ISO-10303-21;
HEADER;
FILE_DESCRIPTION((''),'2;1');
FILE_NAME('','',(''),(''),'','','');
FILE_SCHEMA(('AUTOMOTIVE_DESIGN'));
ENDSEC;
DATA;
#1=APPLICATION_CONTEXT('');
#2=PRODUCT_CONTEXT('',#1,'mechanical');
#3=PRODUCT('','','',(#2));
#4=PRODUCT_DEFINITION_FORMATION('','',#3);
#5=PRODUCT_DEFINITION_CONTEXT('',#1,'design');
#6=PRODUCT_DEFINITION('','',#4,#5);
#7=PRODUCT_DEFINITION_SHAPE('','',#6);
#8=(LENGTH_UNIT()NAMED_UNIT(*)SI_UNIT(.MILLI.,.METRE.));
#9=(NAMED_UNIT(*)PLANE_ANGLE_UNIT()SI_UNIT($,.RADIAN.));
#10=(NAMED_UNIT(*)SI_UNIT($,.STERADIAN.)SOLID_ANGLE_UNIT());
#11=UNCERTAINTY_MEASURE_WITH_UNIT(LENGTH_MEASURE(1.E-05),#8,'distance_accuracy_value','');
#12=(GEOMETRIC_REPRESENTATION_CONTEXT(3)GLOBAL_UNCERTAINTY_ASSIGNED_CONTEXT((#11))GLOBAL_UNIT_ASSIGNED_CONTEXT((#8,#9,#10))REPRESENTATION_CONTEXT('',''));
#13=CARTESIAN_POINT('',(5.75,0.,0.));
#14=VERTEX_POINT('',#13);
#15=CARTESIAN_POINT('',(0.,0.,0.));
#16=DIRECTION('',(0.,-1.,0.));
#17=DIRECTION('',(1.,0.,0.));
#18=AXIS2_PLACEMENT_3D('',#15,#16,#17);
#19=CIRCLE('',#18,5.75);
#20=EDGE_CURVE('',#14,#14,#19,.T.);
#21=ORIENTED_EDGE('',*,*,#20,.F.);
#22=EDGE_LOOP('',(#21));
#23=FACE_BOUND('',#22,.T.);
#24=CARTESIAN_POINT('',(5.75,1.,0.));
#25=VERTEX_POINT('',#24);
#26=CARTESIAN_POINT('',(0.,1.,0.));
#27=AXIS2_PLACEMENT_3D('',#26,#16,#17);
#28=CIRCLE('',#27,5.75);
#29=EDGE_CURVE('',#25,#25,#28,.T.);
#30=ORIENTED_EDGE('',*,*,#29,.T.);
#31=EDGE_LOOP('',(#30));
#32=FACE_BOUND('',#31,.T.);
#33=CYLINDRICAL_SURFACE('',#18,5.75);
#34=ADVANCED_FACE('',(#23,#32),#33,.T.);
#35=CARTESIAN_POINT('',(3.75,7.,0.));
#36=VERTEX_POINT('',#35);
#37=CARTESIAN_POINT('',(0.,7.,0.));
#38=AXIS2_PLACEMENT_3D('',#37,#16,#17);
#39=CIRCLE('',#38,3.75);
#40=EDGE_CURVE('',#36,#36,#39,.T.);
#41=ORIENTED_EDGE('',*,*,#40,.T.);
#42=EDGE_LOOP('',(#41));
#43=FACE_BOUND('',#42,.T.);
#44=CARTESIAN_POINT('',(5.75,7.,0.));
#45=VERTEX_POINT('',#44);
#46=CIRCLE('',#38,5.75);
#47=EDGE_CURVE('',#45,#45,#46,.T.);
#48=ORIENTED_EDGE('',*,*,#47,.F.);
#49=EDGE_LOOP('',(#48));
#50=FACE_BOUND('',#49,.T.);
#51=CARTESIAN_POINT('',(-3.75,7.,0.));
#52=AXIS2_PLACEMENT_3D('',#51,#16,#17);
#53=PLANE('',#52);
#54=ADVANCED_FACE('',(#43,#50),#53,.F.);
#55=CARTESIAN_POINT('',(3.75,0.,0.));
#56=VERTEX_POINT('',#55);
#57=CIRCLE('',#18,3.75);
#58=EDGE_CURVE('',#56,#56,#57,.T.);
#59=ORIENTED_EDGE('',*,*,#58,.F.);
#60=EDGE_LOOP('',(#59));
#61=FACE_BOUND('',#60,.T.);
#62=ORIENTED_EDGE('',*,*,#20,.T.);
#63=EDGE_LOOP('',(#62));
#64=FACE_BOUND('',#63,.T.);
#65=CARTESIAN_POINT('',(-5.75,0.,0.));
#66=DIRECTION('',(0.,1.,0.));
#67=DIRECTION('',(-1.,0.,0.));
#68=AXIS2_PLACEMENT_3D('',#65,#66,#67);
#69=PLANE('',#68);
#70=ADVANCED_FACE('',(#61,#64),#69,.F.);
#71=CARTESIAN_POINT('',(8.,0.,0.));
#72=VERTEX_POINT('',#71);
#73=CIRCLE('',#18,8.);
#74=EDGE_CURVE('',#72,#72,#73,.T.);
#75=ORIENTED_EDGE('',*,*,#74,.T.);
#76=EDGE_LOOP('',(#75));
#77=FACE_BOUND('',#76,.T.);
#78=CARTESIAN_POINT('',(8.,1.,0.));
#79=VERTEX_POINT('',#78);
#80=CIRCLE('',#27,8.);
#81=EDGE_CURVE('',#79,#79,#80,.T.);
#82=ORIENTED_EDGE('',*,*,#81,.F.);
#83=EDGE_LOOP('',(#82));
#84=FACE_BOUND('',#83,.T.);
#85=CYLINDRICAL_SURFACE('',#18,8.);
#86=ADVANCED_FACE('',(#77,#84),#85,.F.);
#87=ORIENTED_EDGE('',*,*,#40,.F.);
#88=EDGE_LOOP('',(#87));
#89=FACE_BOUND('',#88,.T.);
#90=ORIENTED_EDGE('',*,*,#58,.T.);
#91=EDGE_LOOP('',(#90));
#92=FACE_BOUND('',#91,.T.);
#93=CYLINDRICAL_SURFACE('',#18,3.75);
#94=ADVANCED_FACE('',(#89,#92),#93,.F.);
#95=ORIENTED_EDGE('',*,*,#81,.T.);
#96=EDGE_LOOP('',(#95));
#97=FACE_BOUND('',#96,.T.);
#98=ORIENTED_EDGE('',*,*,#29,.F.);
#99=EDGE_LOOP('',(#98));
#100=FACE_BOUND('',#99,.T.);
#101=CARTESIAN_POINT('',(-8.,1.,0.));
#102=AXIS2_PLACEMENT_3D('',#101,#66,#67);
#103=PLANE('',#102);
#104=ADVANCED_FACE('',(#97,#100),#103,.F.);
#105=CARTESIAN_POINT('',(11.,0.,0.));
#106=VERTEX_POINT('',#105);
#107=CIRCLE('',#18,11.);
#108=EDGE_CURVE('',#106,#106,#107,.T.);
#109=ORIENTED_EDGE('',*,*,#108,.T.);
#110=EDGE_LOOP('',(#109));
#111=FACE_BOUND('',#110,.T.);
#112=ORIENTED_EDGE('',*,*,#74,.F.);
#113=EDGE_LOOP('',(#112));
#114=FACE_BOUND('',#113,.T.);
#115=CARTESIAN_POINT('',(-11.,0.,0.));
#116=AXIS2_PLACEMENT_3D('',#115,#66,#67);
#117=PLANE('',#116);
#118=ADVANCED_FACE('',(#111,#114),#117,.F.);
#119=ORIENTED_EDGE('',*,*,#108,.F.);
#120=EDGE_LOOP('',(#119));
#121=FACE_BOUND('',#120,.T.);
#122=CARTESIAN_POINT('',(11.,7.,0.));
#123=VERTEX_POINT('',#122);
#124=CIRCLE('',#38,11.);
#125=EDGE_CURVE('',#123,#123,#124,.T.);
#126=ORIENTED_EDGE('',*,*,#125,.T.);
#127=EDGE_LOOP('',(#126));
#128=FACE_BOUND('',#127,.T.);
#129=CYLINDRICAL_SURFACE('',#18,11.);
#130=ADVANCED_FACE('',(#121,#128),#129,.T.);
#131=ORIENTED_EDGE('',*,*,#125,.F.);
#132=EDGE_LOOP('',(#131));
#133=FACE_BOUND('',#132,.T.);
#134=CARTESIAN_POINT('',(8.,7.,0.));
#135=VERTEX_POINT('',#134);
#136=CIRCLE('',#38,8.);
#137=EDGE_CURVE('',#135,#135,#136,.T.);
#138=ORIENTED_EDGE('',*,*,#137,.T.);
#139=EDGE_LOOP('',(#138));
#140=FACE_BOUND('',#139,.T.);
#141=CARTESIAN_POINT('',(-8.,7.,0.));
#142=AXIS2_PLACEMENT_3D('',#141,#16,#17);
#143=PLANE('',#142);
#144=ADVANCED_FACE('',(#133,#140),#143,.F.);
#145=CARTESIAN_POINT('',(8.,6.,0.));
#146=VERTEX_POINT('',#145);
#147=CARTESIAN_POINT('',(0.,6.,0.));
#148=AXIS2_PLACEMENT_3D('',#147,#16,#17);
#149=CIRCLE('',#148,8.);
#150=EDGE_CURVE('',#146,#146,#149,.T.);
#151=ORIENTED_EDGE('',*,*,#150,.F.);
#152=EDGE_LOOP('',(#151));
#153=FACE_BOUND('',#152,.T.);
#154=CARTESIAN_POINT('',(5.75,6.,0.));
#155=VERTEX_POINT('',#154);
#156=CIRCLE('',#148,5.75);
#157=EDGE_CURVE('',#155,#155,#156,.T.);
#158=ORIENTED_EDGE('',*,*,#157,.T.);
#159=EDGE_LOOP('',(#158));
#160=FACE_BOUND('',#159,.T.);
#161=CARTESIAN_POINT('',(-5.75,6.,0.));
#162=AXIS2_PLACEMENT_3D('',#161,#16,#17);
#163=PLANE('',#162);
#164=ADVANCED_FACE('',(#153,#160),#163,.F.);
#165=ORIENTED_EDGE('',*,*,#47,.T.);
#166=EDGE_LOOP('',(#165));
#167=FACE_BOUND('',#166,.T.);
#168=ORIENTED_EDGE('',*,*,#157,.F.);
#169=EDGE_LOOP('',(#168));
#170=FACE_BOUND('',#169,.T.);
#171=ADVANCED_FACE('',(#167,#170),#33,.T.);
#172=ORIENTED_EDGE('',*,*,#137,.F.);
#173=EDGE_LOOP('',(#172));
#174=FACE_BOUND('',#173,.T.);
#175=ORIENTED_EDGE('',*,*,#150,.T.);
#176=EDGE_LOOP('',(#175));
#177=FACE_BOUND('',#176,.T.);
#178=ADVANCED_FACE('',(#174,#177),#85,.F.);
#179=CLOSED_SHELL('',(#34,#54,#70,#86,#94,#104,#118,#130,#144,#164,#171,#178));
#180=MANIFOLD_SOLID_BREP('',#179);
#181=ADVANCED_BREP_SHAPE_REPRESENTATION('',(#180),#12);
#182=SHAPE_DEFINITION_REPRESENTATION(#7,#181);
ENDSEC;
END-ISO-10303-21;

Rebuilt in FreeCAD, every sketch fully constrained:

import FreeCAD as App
import Part
import Sketcher
Q = App.Units.Quantity


def add_polygon(sketch, points):
    """Adds a closed chain of lines whose ends are joined by coincident constraints."""
    first, n = sketch.GeometryCount, len(points)
    for a, b in zip(points, points[1:] + points[:1]):
        sketch.addGeometry(Part.LineSegment(App.Vector(*a, 0), App.Vector(*b, 0)), False)
    for i in range(n):
        sketch.addConstraint(Sketcher.Constraint("Coincident", first + i, 2, first + (i + 1) % n, 1))

doc = App.newDocument("Part")
body = doc.addObject("PartDesign::Body", "Body")

sketch1 = body.newObject("Sketcher::SketchObject", "Sketch")
sketch1.AttachmentSupport = (doc.getObject("XY_Plane"), [""])
sketch1.MapMode = "FlatFace"
add_polygon(sketch1, [(-3.75, 0), (-3.75, 7), (-5.75, 7), (-5.75, 6), (-8, 6), (-8, 7), (-11, 7), (-11, 0), (-8, 0), (-8, 1), (-5.75, 1), (-5.75, 0)])
sketch1.addConstraint([
    Sketcher.Constraint("Vertical", 0),
    Sketcher.Constraint("Horizontal", 1),
    Sketcher.Constraint("Vertical", 2),
    Sketcher.Constraint("Horizontal", 3),
    Sketcher.Constraint("Vertical", 4),
    Sketcher.Constraint("Horizontal", 5),
    Sketcher.Constraint("Vertical", 6),
    Sketcher.Constraint("Horizontal", 7),
    Sketcher.Constraint("Vertical", 8),
    Sketcher.Constraint("Horizontal", 9),
    Sketcher.Constraint("Vertical", 10),
    Sketcher.Constraint("Horizontal", 11),
    Sketcher.Constraint("PointOnObject", 6, 2, -1),
    Sketcher.Constraint("PointOnObject", 10, 2, -1),
    Sketcher.Constraint("Horizontal", 1, 2, 4, 2),
    Sketcher.Constraint("Vertical", 4, 2, 7, 2),
    Sketcher.Constraint("Vertical", 2, 2, 9, 2),
    Sketcher.Constraint("Equal", 4, 8),
    Sketcher.Constraint("DistanceX", 1, 2, 1, 1, Q("2 mm")),
    Sketcher.Constraint("DistanceX", 5, 2, 5, 1, Q("3 mm")),
    Sketcher.Constraint("DistanceY", 0, 1, 0, 2, Q("7 mm")),
    Sketcher.Constraint("DistanceY", 2, 2, 2, 1, Q("1 mm")),
    Sketcher.Constraint("DistanceX", 3, 2, -1, 1, Q("8 mm")),
    Sketcher.Constraint("DistanceX", 3, 2, 3, 1, Q("2.25 mm")),
])
revolution = body.newObject("PartDesign::Revolution", "Revolution")
revolution.Profile = sketch1
revolution.ReferenceAxis = (sketch1, ["V_Axis"])
revolution.Angle = 360

doc.recompute()
